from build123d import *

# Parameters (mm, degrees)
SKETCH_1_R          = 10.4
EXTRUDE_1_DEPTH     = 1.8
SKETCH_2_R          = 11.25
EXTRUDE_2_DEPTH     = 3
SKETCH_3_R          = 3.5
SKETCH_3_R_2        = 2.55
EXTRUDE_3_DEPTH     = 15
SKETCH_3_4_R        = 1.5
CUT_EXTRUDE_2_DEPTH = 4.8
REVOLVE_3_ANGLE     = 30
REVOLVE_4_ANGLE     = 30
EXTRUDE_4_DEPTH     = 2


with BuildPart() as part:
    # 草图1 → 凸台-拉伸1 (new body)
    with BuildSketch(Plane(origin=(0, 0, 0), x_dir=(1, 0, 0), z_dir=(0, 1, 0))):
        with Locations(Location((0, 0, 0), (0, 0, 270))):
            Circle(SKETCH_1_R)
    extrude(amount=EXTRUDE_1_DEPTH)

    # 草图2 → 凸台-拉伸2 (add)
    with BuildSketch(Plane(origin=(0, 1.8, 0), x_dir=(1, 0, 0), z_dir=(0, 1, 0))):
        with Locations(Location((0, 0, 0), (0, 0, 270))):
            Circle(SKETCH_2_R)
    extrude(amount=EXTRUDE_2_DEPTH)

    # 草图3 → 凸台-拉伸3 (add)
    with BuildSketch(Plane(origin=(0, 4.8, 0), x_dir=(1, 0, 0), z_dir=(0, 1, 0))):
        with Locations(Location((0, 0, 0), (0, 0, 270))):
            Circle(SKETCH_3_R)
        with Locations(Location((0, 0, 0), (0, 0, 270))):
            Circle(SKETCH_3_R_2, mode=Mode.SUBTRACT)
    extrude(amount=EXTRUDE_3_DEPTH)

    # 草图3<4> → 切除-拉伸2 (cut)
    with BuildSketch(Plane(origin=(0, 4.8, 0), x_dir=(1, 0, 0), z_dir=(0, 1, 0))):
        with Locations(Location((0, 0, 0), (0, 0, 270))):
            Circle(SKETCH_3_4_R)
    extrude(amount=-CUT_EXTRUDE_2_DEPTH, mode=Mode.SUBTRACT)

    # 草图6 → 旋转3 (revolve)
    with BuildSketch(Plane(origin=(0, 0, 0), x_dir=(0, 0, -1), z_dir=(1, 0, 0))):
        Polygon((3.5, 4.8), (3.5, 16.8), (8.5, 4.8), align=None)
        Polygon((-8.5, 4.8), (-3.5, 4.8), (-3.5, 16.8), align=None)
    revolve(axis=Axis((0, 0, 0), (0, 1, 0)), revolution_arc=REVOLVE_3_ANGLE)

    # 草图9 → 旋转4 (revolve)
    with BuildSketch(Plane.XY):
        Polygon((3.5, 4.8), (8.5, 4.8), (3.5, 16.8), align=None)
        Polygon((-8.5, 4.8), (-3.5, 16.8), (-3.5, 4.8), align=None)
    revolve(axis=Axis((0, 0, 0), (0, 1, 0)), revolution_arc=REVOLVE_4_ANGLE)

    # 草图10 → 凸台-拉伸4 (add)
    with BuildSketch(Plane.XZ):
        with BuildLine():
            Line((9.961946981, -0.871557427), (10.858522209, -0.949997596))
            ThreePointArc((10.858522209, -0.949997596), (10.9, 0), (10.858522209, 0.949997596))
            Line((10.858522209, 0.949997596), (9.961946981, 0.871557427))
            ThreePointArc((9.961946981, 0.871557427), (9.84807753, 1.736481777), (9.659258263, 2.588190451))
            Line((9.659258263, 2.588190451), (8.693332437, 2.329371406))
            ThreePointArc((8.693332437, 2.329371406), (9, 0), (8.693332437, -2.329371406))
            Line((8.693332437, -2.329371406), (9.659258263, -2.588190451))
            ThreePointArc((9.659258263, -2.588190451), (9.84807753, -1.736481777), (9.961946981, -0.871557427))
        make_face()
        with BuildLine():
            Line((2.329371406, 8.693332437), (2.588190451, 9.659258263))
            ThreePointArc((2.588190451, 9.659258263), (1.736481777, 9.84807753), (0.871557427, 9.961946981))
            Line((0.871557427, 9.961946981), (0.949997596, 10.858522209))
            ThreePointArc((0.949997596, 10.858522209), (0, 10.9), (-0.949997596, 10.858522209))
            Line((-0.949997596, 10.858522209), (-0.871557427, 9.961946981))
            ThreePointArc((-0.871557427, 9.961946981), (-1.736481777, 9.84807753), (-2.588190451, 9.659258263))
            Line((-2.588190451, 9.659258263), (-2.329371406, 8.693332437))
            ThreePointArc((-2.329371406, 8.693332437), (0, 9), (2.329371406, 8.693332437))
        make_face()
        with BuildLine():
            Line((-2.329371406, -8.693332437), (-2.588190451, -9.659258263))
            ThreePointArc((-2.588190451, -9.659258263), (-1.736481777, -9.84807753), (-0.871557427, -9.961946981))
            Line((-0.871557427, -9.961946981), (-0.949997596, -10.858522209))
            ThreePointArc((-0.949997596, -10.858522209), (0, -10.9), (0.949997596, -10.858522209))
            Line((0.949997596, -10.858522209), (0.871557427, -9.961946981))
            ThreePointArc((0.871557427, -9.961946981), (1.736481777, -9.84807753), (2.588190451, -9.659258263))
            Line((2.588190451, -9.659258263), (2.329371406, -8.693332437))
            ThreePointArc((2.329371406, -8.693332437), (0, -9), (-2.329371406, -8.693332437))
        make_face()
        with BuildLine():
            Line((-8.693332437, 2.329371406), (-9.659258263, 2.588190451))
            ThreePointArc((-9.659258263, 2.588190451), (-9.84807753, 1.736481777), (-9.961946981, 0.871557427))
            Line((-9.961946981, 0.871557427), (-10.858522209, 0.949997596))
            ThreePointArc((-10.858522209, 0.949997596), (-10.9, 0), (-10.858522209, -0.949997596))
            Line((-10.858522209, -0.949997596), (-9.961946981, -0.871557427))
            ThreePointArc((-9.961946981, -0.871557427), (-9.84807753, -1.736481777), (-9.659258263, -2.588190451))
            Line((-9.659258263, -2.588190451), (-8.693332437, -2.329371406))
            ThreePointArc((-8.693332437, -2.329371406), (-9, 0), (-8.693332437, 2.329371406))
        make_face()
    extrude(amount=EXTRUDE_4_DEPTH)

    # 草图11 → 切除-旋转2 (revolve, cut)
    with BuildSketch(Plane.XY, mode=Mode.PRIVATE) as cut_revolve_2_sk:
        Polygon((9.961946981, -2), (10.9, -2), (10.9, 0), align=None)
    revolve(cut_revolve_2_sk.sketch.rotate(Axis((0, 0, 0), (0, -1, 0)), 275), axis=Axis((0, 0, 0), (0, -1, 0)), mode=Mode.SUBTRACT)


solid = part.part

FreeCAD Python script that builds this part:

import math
import FreeCAD as App
import Part
import Sketcher

V = App.Vector
Q = App.Units.Quantity


def add_polygon(sketch, points):
    """Adds a closed chain of lines whose ends are joined by coincident constraints."""
    first, n = sketch.GeometryCount, len(points)
    for a, b in zip(points, points[1:] + points[:1]):
        sketch.addGeometry(Part.LineSegment(App.Vector(*a, 0), App.Vector(*b, 0)), False)
    for i in range(n):
        sketch.addConstraint(Sketcher.Constraint("Coincident", first + i, 2, first + (i + 1) % n, 1))

doc = App.newDocument("Part")
body = doc.addObject("PartDesign::Body", "Body")

# Sketch on XZ plane
sketch1 = doc.addObject("Sketcher::SketchObject", "Sketch")
body.addObject(sketch1)
sketch1.AttachmentSupport = (doc.XZ_Plane, [""])
sketch1.MapMode = "FlatFace"
sketch1.addGeometry(Part.Circle(V(0, 0, 0), V(0, 0, 1), 10.4), False)
sketch1.addConstraint([
    Sketcher.Constraint("Coincident", 0, 3, -1, 1),
    Sketcher.Constraint("Diameter", 0, Q("20.8 mm")),
])
pad1 = doc.addObject("PartDesign::Pad", "Pad")
body.addObject(pad1)
pad1.Profile = sketch1
pad1.Length = 1.8
pad1.Reversed = True

# Sketch on XZ plane
sketch2 = doc.addObject("Sketcher::SketchObject", "Sketch001")
body.addObject(sketch2)
sketch2.AttachmentSupport = (doc.XZ_Plane, [""])
sketch2.MapMode = "FlatFace"
sketch2.AttachmentOffset = App.Placement(V(0, 0, -1.8), App.Rotation())
sketch2.addGeometry(Part.Circle(V(0, 0, 0), V(0, 0, 1), 11.25), False)
sketch2.addConstraint([
    Sketcher.Constraint("Coincident", 0, 3, -1, 1),
    Sketcher.Constraint("Diameter", 0, Q("22.5 mm")),
])
pad2 = doc.addObject("PartDesign::Pad", "Pad001")
body.addObject(pad2)
pad2.Profile = sketch2
pad2.Length = 3
pad2.Reversed = True

# Sketch on XZ plane
sketch3 = doc.addObject("Sketcher::SketchObject", "Sketch002")
body.addObject(sketch3)
sketch3.AttachmentSupport = (doc.XZ_Plane, [""])
sketch3.MapMode = "FlatFace"
sketch3.AttachmentOffset = App.Placement(V(0, 0, -4.8), App.Rotation())
sketch3.addGeometry([
    Part.Circle(V(0, 0, 0), V(0, 0, 1), 3.5),
    Part.Circle(V(0, 0, 0), V(0, 0, 1), 2.55),
], False)
sketch3.addConstraint([
    Sketcher.Constraint("Coincident", 0, 3, -1, 1),
    Sketcher.Constraint("Coincident", 1, 3, -1, 1),
    Sketcher.Constraint("Diameter", 0, Q("7 mm")),
    Sketcher.Constraint("Diameter", 1, Q("5.1 mm")),
])
pad3 = doc.addObject("PartDesign::Pad", "Pad002")
body.addObject(pad3)
pad3.Profile = sketch3
pad3.Length = 15
pad3.Reversed = True

# Sketch on XZ plane
sketch4 = doc.addObject("Sketcher::SketchObject", "Sketch003")
body.addObject(sketch4)
sketch4.AttachmentSupport = (doc.XZ_Plane, [""])
sketch4.MapMode = "FlatFace"
sketch4.AttachmentOffset = App.Placement(V(0, 0, -4.8), App.Rotation())
sketch4.addGeometry(Part.Circle(V(0, 0, 0), V(0, 0, 1), 1.5), False)
sketch4.addConstraint([
    Sketcher.Constraint("Coincident", 0, 3, -1, 1),
    Sketcher.Constraint("Diameter", 0, Q("3 mm")),
])
pocket1 = doc.addObject("PartDesign::Pocket", "Pocket")
body.addObject(pocket1)
pocket1.Profile = sketch4
pocket1.Length = 4.8
pocket1.Reversed = True

# Sketch on YZ plane
sketch5 = doc.addObject("Sketcher::SketchObject", "Sketch004")
body.addObject(sketch5)
sketch5.AttachmentSupport = (doc.YZ_Plane, [""])
sketch5.MapMode = "FlatFace"
add_polygon(sketch5, [(16.8, -3.5), (4.8, -3.5), (4.8, -8.5)])  # lines 0-2
add_polygon(sketch5, [(4.8, 8.5), (4.8, 3.5), (16.8, 3.5)])  # lines 3-5
sketch5.addConstraint([
    Sketcher.Constraint("Horizontal", 0),
    Sketcher.Constraint("Vertical", 1),
    Sketcher.Constraint("Vertical", 3),
    Sketcher.Constraint("Horizontal", 4),
    Sketcher.Constraint("Symmetric", 0, 2, 3, 2, -1),
    Sketcher.Constraint("Vertical", 2, 2, 4, 2),
    Sketcher.Constraint("Equal", 1, 3),
    Sketcher.Constraint("DistanceX", 0, 2, 0, 1, Q("12 mm")),
    Sketcher.Constraint("DistanceY", 1, 2, 1, 1, Q("5 mm")),
    Sketcher.Constraint("DistanceY", 0, 2, 3, 2, Q("7 mm")),
    Sketcher.Constraint("DistanceX", -1, 1, 0, 2, Q("4.8 mm")),
])
revolution = doc.addObject("PartDesign::Revolution", "Revolution")
body.addObject(revolution)
revolution.Profile = sketch5
revolution.ReferenceAxis = (sketch5, ["H_Axis"])
revolution.Angle = 30

# Sketch on XY plane
sketch6 = doc.addObject("Sketcher::SketchObject", "Sketch005")
body.addObject(sketch6)
sketch6.AttachmentSupport = (doc.XY_Plane, [""])
sketch6.MapMode = "FlatFace"
add_polygon(sketch6, [(3.5, 4.8), (8.5, 4.8), (3.5, 16.8)])  # lines 0-2
add_polygon(sketch6, [(-3.5, 16.8), (-8.5, 4.8), (-3.5, 4.8)])  # lines 3-5
sketch6.addConstraint([
    Sketcher.Constraint("Horizontal", 0),
    Sketcher.Constraint("Vertical", 2),
    Sketcher.Constraint("Horizontal", 4),
    Sketcher.Constraint("Vertical", 5),
    Sketcher.Constraint("Symmetric", 0, 2, 3, 2, -2),
    Sketcher.Constraint("Symmetric", 1, 2, 5, 2, -2),
    Sketcher.Constraint("DistanceX", 0, 1, 0, 2, Q("5 mm")),
    Sketcher.Constraint("DistanceY", 2, 2, 2, 1, Q("12 mm")),
    Sketcher.Constraint("DistanceX", 3, 2, 2, 2, Q("12 mm")),
    Sketcher.Constraint("DistanceY", -1, 1, 0, 2, Q("4.8 mm")),
])
revolution2 = doc.addObject("PartDesign::Revolution", "Revolution001")
body.addObject(revolution2)
revolution2.Profile = sketch6
revolution2.ReferenceAxis = (sketch6, ["V_Axis"])
revolution2.Angle = 30

# Sketch on XZ plane
sketch7 = doc.addObject("Sketcher::SketchObject", "Sketch006")
body.addObject(sketch7)
sketch7.AttachmentSupport = (doc.XZ_Plane, [""])
sketch7.MapMode = "FlatFace"
sketch7.addGeometry([
    Part.LineSegment(V(9.961947, -0.871557, 0), V(10.858522, -0.949998, 0)),  # 0
    Part.ArcOfCircle(Part.Circle(V(0, 0, 0), V(0, 0, 1), 10.9), math.radians(-5), math.radians(5)),  # 1
    Part.LineSegment(V(10.858522, 0.949998, 0), V(9.961947, 0.871557, 0)),  # 2
    Part.ArcOfCircle(Part.Circle(V(0, 0, 0), V(0, 0, 1), 10), math.radians(5), math.radians(15)),  # 3
    Part.LineSegment(V(9.659258, 2.58819, 0), V(8.693332, 2.329371, 0)),  # 4
    Part.ArcOfCircle(Part.Circle(V(0, 0, 0), V(0, 0, 1), 9), math.radians(-15), math.radians(15)),  # 5
    Part.LineSegment(V(8.693332, -2.329371, 0), V(9.659258, -2.58819, 0)),  # 6
    Part.ArcOfCircle(Part.Circle(V(0, 0, 0), V(0, 0, 1), 10), math.radians(-15), math.radians(-5)),  # 7
    Part.LineSegment(V(2.329371, 8.693332, 0), V(2.58819, 9.659258, 0)),  # 8
    Part.ArcOfCircle(Part.Circle(V(0, 0, 0), V(0, 0, 1), 10), math.radians(75), math.radians(85)),  # 9
    Part.LineSegment(V(0.871557, 9.961947, 0), V(0.949998, 10.858522, 0)),  # 10
    Part.ArcOfCircle(Part.Circle(V(0, 0, 0), V(0, 0, 1), 10.9), math.radians(85), math.radians(95)),  # 11
    Part.LineSegment(V(-0.949998, 10.858522, 0), V(-0.871557, 9.961947, 0)),  # 12
    Part.ArcOfCircle(Part.Circle(V(0, 0, 0), V(0, 0, 1), 10), math.radians(95), math.radians(105)),  # 13
    Part.LineSegment(V(-2.58819, 9.659258, 0), V(-2.329371, 8.693332, 0)),  # 14
    Part.ArcOfCircle(Part.Circle(V(0, 0, 0), V(0, 0, 1), 9), math.radians(75), math.radians(105)),  # 15
    Part.LineSegment(V(-2.329371, -8.693332, 0), V(-2.58819, -9.659258, 0)),  # 16
    Part.ArcOfCircle(Part.Circle(V(0, 0, 0), V(0, 0, 1), 10), math.radians(-105), math.radians(-95)),  # 17
    Part.LineSegment(V(-0.871557, -9.961947, 0), V(-0.949998, -10.858522, 0)),  # 18
    Part.ArcOfCircle(Part.Circle(V(0, 0, 0), V(0, 0, 1), 10.9), math.radians(-95), math.radians(-85)),  # 19
    Part.LineSegment(V(0.949998, -10.858522, 0), V(0.871557, -9.961947, 0)),  # 20
    Part.ArcOfCircle(Part.Circle(V(0, 0, 0), V(0, 0, 1), 10), math.radians(-85), math.radians(-75)),  # 21
    Part.LineSegment(V(2.58819, -9.659258, 0), V(2.329371, -8.693332, 0)),  # 22
    Part.ArcOfCircle(Part.Circle(V(0, 0, 0), V(0, 0, 1), 9), math.radians(-105), math.radians(-75)),  # 23
    Part.LineSegment(V(-8.693332, 2.329371, 0), V(-9.659258, 2.58819, 0)),  # 24
    Part.ArcOfCircle(Part.Circle(V(0, 0, 0), V(0, 0, 1), 10), math.radians(165), math.radians(175)),  # 25
    Part.LineSegment(V(-9.961947, 0.871557, 0), V(-10.858522, 0.949998, 0)),  # 26
    Part.ArcOfCircle(Part.Circle(V(0, 0, 0), V(0, 0, 1), 10.9), math.radians(175), math.radians(185)),  # 27
    Part.LineSegment(V(-10.858522, -0.949998, 0), V(-9.961947, -0.871557, 0)),  # 28
    Part.ArcOfCircle(Part.Circle(V(0, 0, 0), V(0, 0, 1), 10), math.radians(-175), math.radians(-165)),  # 29
    Part.LineSegment(V(-9.659258, -2.58819, 0), V(-8.693332, -2.329371, 0)),  # 30
    Part.ArcOfCircle(Part.Circle(V(0, 0, 0), V(0, 0, 1), 9), math.radians(165), math.radians(195)),  # 31
], False)
sketch7.addConstraint([
    Sketcher.Constraint("Coincident", 0, 2, 1, 1),
    Sketcher.Constraint("Coincident", 1, 2, 2, 1),
    Sketcher.Constraint("Coincident", 2, 2, 3, 1),
    Sketcher.Constraint("Coincident", 3, 2, 4, 1),
    Sketcher.Constraint("Coincident", 4, 2, 5, 2),
    Sketcher.Constraint("Coincident", 5, 1, 6, 1),
    Sketcher.Constraint("Coincident", 6, 2, 7, 1),
    Sketcher.Constraint("Coincident", 7, 2, 0, 1),
    Sketcher.Constraint("Coincident", 8, 2, 9, 1),
    Sketcher.Constraint("Coincident", 9, 2, 10, 1),
    Sketcher.Constraint("Coincident", 10, 2, 11, 1),
    Sketcher.Constraint("Coincident", 11, 2, 12, 1),
    Sketcher.Constraint("Coincident", 12, 2, 13, 1),
    Sketcher.Constraint("Coincident", 13, 2, 14, 1),
    Sketcher.Constraint("Coincident", 14, 2, 15, 2),
    Sketcher.Constraint("Coincident", 15, 1, 8, 1),
    Sketcher.Constraint("Coincident", 16, 2, 17, 1),
    Sketcher.Constraint("Coincident", 17, 2, 18, 1),
    Sketcher.Constraint("Coincident", 18, 2, 19, 1),
    Sketcher.Constraint("Coincident", 19, 2, 20, 1),
    Sketcher.Constraint("Coincident", 20, 2, 21, 1),
    Sketcher.Constraint("Coincident", 21, 2, 22, 1),
    Sketcher.Constraint("Coincident", 22, 2, 23, 2),
    Sketcher.Constraint("Coincident", 23, 1, 16, 1),
    Sketcher.Constraint("Coincident", 24, 2, 25, 1),
    Sketcher.Constraint("Coincident", 25, 2, 26, 1),
    Sketcher.Constraint("Coincident", 26, 2, 27, 1),
    Sketcher.Constraint("Coincident", 27, 2, 28, 1),
    Sketcher.Constraint("Coincident", 28, 2, 29, 1),
    Sketcher.Constraint("Coincident", 29, 2, 30, 1),
    Sketcher.Constraint("Coincident", 30, 2, 31, 2),
    Sketcher.Constraint("Coincident", 31, 1, 24, 1),
    Sketcher.Constraint("Coincident", 1, 3, -1, 1),
    Sketcher.Constraint("Coincident", 3, 3, -1, 1),
    Sketcher.Constraint("Coincident", 5, 3, -1, 1),
    Sketcher.Constraint("Coincident", 7, 3, -1, 1),
    Sketcher.Constraint("Coincident", 9, 3, -1, 1),
    Sketcher.Constraint("Coincident", 11, 3, -1, 1),
    Sketcher.Constraint("Coincident", 13, 3, -1, 1),
    Sketcher.Constraint("Coincident", 15, 3, -1, 1),
    Sketcher.Constraint("Coincident", 17, 3, -1, 1),
    Sketcher.Constraint("Coincident", 19, 3, -1, 1),
    Sketcher.Constraint("Coincident", 21, 3, -1, 1),
    Sketcher.Constraint("Coincident", 23, 3, -1, 1),
    Sketcher.Constraint("Coincident", 25, 3, -1, 1),
    Sketcher.Constraint("Coincident", 27, 3, -1, 1),
    Sketcher.Constraint("Coincident", 29, 3, -1, 1),
    Sketcher.Constraint("Coincident", 31, 3, -1, 1),
    Sketcher.Constraint("Equal", 3, 7),
    Sketcher.Constraint("Equal", 7, 9),
    Sketcher.Constraint("Equal", 1, 11),
    Sketcher.Constraint("Equal", 9, 13),
    Sketcher.Constraint("Equal", 5, 15),
    Sketcher.Constraint("Equal", 13, 17),
    Sketcher.Constraint("Equal", 11, 19),
    Sketcher.Constraint("Equal", 17, 21),
    Sketcher.Constraint("Equal", 15, 23),
    Sketcher.Constraint("Equal", 21, 25),
    Sketcher.Constraint("Equal", 19, 27),
    Sketcher.Constraint("Equal", 25, 29),
    Sketcher.Constraint("Equal", 23, 31),
    Sketcher.Constraint("Perpendicular", 6, 8),
    Sketcher.Constraint("Perpendicular", 0, 10),
    Sketcher.Constraint("Perpendicular", 2, 12),
    Sketcher.Constraint("Perpendicular", 4, 14),
    Sketcher.Constraint("Parallel", 8, 16),
    Sketcher.Constraint("Parallel", 10, 18),
    Sketcher.Constraint("Parallel", 12, 20),
    Sketcher.Constraint("Parallel", 14, 22),
    Sketcher.Constraint("Perpendicular", 16, 24),
    Sketcher.Constraint("Perpendicular", 18, 26),
    Sketcher.Constraint("Perpendicular", 20, 28),
    Sketcher.Constraint("Perpendicular", 22, 30),
    Sketcher.Constraint("Horizontal", 10, 2, 11, 2),
    Sketcher.Constraint("Horizontal", 9, 2, 12, 2),
    Sketcher.Constraint("Horizontal", 8, 2, 13, 2),
    Sketcher.Constraint("Horizontal", 14, 2, 15, 1),
    Sketcher.Constraint("Horizontal", 18, 2, 19, 2),
    Sketcher.Constraint("Horizontal", 16, 2, 21, 2),
    Sketcher.Constraint("Horizontal", 3, 2, 24, 2),
    Sketcher.Constraint("Horizontal", 2, 2, 25, 2),
    Sketcher.Constraint("Horizontal", 0, 2, 27, 2),
    Sketcher.Constraint("Horizontal", 6, 2, 29, 2),
    Sketcher.Constraint("Vertical", 0, 2, 1, 2),
    Sketcher.Constraint("Vertical", 4, 2, 5, 1),
    Sketcher.Constraint("Vertical", 13, 2, 16, 2),
    Sketcher.Constraint("Vertical", 12, 2, 17, 2),
    Sketcher.Constraint("Radius", 3, Q("10 mm")),
    Sketcher.Constraint("Radius", 5, Q("9 mm")),
    Sketcher.Constraint("Radius", 1, Q("10.9 mm")),
    Sketcher.Constraint("Angle", 0, Q("-5 deg")),
    Sketcher.Constraint("Angle", 4, Q("-165 deg")),
    Sketcher.Constraint("DistanceX", -1, 1, 3, 2, Q("9.659258 mm")),
    Sketcher.Constraint("DistanceX", -1, 1, 8, 2, Q("2.58819 mm")),
    Sketcher.Constraint("DistanceX", 3, 2, 2, 2, Q("0.302689 mm")),
    Sketcher.Constraint("DistanceY", 8, 2, 9, 2, Q("0.302689 mm")),
])
pad4 = doc.addObject("PartDesign::Pad", "Pad003")
body.addObject(pad4)
pad4.Profile = sketch7
pad4.Length = 2

# Sketch on XY plane
sketch8 = doc.addObject("Sketcher::SketchObject", "Sketch007")
body.addObject(sketch8)
sketch8.AttachmentSupport = (doc.XY_Plane, [""])
sketch8.MapMode = "FlatFace"
add_polygon(sketch8, [(9.961947, -2), (10.9, -2), (10.9, 0)])  # lines 0-2
sketch8.addConstraint([
    Sketcher.Constraint("Horizontal", 0),
    Sketcher.Constraint("Vertical", 1),
    Sketcher.Constraint("PointOnObject", 1, 2, -1),
    Sketcher.Constraint("DistanceY", 1, 1, 1, 2, Q("2 mm")),
    Sketcher.Constraint("DistanceX", -1, 1, 0, 2, Q("10.9 mm")),
    Sketcher.Constraint("Distance", 2, Q("2.209059 mm")),
])
groove = doc.addObject("PartDesign::Groove", "Groove")
body.addObject(groove)
groove.Profile = sketch8
groove.ReferenceAxis = (sketch8, ["V_Axis"])
groove.Angle = 360

doc.recompute()
